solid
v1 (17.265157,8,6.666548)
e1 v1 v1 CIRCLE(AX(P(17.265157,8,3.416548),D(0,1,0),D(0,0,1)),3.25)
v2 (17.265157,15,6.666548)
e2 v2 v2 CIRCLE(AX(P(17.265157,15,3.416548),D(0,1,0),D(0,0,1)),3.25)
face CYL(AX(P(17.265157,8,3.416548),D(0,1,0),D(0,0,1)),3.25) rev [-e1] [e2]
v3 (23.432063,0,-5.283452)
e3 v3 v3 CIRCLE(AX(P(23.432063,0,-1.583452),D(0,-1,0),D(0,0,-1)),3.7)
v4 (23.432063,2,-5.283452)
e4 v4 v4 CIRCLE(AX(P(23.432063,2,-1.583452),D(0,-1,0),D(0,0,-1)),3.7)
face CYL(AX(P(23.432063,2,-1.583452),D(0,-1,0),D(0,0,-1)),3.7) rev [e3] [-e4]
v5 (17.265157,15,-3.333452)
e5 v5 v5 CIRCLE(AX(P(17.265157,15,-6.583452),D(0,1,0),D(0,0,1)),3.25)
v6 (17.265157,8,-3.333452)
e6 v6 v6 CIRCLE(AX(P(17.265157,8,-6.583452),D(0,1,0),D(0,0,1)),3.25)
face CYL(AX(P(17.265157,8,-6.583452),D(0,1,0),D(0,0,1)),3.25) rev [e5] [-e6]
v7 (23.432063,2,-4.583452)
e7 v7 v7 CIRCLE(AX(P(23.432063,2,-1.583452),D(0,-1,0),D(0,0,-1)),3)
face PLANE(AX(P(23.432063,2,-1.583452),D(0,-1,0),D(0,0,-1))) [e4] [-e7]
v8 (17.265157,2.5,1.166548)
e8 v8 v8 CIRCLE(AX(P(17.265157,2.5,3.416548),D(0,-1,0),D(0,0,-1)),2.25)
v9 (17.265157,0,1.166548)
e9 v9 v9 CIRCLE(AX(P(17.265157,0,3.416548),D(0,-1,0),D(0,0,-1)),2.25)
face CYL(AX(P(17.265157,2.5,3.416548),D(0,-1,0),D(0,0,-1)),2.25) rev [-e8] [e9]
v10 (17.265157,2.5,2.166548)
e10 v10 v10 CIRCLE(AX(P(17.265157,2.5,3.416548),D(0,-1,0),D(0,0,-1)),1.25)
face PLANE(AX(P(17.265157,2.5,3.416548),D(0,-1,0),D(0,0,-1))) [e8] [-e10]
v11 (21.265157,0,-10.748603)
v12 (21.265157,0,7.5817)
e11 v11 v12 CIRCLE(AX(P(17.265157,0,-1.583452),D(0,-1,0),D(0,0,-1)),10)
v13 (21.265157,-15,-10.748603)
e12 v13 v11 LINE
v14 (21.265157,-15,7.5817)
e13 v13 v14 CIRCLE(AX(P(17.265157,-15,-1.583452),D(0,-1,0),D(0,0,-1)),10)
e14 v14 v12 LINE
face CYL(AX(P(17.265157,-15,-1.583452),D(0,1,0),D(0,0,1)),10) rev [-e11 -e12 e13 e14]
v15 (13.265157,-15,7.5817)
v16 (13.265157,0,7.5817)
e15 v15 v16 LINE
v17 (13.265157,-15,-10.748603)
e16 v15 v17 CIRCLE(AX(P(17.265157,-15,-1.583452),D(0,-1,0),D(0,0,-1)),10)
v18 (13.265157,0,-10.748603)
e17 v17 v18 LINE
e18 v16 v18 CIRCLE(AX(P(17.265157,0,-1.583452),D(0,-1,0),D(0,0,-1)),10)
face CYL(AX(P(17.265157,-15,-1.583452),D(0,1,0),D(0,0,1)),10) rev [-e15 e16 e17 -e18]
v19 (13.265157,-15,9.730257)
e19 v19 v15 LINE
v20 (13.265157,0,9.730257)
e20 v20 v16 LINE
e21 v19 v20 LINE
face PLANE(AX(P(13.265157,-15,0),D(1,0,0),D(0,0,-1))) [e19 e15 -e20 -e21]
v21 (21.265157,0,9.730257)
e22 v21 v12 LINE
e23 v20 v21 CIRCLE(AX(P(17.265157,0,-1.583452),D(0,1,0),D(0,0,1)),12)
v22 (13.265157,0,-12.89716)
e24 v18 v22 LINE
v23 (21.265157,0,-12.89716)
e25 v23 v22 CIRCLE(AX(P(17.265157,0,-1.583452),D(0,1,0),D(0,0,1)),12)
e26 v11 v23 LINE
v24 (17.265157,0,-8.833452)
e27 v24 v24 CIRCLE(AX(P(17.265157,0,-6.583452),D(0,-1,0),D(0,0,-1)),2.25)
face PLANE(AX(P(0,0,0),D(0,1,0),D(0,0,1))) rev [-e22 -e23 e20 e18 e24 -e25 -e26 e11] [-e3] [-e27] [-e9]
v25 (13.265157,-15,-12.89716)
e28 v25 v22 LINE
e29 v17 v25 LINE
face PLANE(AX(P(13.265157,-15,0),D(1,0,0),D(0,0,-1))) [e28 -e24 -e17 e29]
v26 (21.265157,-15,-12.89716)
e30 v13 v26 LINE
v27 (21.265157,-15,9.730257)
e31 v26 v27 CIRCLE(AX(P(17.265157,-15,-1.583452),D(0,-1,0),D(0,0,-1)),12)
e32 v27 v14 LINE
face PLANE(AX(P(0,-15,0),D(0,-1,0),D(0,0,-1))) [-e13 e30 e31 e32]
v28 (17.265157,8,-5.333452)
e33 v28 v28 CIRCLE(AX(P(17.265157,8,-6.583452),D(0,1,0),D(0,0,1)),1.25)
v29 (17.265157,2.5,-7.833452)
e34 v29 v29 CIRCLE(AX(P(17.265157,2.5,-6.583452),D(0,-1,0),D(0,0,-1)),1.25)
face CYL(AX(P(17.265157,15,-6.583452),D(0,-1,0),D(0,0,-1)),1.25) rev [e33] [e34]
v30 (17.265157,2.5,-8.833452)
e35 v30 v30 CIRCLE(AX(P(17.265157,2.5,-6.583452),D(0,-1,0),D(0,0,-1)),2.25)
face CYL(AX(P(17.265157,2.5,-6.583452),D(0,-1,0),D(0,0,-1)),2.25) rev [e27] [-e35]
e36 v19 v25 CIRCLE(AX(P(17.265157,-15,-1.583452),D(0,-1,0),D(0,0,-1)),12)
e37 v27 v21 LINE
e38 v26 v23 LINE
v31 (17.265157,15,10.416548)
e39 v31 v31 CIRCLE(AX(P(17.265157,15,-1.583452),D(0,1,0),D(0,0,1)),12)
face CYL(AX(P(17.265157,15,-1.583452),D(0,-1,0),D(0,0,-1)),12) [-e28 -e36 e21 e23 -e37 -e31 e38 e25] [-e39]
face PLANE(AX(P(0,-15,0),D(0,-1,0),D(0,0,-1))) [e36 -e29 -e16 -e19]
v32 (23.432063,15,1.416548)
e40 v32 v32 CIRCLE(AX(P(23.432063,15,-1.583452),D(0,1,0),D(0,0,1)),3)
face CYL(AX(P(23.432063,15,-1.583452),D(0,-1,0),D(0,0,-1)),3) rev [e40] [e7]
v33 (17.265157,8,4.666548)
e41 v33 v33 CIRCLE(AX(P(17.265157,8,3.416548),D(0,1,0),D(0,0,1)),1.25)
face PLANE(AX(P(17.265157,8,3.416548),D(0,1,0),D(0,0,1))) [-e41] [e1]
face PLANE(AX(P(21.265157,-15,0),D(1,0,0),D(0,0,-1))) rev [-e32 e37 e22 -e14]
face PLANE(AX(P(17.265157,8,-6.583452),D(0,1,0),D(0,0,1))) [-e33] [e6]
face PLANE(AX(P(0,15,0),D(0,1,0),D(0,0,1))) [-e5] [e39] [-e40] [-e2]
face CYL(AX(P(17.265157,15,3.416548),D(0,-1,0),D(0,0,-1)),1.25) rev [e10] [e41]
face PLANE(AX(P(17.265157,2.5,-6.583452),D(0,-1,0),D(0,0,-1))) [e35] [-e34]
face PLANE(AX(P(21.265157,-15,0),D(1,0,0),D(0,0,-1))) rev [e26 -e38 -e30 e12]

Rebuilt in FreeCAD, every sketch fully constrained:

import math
import FreeCAD as App
import Part
import Sketcher

V = App.Vector
Q = App.Units.Quantity

doc = App.newDocument("Part")
body = doc.addObject("PartDesign::Body", "Body")

sketch1 = body.newObject("Sketcher::SketchObject", "Sketch")
sketch1.AttachmentSupport = (doc.getObject("XZ_Plane"), [""])
sketch1.MapMode = "FlatFace"
sketch1.addGeometry([
    Part.ArcOfCircle(Part.Circle(V(17.3, -1.6, 0), V(0, 0, 1), 12), math.radians(-109), math.radians(-71)),
    Part.ArcOfCircle(Part.Circle(V(17.3, -1.6, 0), V(0, 0, 1), 12), math.radians(109), math.radians(251)),
    Part.ArcOfCircle(Part.Circle(V(17.3, -1.6, 0), V(0, 0, 1), 12), math.radians(71), math.radians(109)),
    Part.ArcOfCircle(Part.Circle(V(17.3, -1.6, 0), V(0, 0, 1), 12), math.radians(0), math.radians(71)),
    Part.ArcOfCircle(Part.Circle(V(17.3, -1.6, 0), V(0, 0, 1), 12), math.radians(-71), math.radians(0)),
    Part.Circle(V(17.3, 3.4, 0), V(0, 0, 1), 1.2),
    Part.Circle(V(17.3, -6.6, 0), V(0, 0, 1), 1.2),
    Part.ArcOfCircle(Part.Circle(V(23.4, -1.6, 0), V(0, 0, 1), 3), math.radians(-136), math.radians(0)),
    Part.ArcOfCircle(Part.Circle(V(23.4, -1.6, 0), V(0, 0, 1), 3), math.radians(0), math.radians(136)),
    Part.ArcOfCircle(Part.Circle(V(23.4, -1.6, 0), V(0, 0, 1), 3), math.radians(136), math.radians(224)),
], False)
sketch1.addConstraint([
    Sketcher.Constraint("Tangent", 0, 1, 1, 2),
    Sketcher.Constraint("Tangent", 1, 1, 2, 2),
    Sketcher.Constraint("Tangent", 2, 1, 3, 2),
    Sketcher.Constraint("Tangent", 3, 1, 4, 2),
    Sketcher.Constraint("Tangent", 4, 1, 0, 2),
    Sketcher.Constraint("Tangent", 7, 2, 8, 1),
    Sketcher.Constraint("Tangent", 8, 2, 9, 1),
    Sketcher.Constraint("Tangent", 9, 2, 7, 1),
    Sketcher.Constraint("Coincident", 2, 3, 0, 3),
    Sketcher.Constraint("Equal", 5, 6),
    Sketcher.Constraint("Horizontal", 4, 3, 7, 3),
    Sketcher.Constraint("Horizontal", 1, 1, 2, 1),
    Sketcher.Constraint("Horizontal", 9, 3, 3, 1),
    Sketcher.Constraint("Horizontal", 0, 1, 4, 1),
    Sketcher.Constraint("Horizontal", 3, 1, 7, 2),
    Sketcher.Constraint("Vertical", 4, 3, 5, 3),
    Sketcher.Constraint("Vertical", 5, 3, 6, 3),
    Sketcher.Constraint("Vertical", 0, 1, 1, 1),
    Sketcher.Constraint("Vertical", 4, 1, 8, 2),
    Sketcher.Constraint("Vertical", 8, 2, 9, 2),
    Sketcher.Constraint("Radius", 0, Q("12 mm")),
    Sketcher.Constraint("Radius", 7, Q("3 mm")),
    Sketcher.Constraint("Diameter", 5, Q("2.5 mm")),
    Sketcher.Constraint("DistanceY", 0, 3, 5, 3, Q("5 mm")),
    Sketcher.Constraint("DistanceY", 6, 3, 3, 3, Q("5 mm")),
    Sketcher.Constraint("DistanceX", 0, 1, 6, 3, Q("4 mm")),
    Sketcher.Constraint("DistanceY", 0, 3, -1, 1, Q("1.583452 mm")),
    Sketcher.Constraint("DistanceY", -1, 1, 8, 2, Q("0.491282 mm")),
    Sketcher.Constraint("DistanceX", -1, 1, 0, 3, Q("17.265157 mm")),
])
pad1 = body.newObject("PartDesign::Pad", "Pad")
pad1.Profile = sketch1
pad1.Length = 15
pad1.Reversed = True

sketch2 = body.newObject("Sketcher::SketchObject", "Sketch001")
sketch2.AttachmentSupport = (doc.getObject("XZ_Plane"), [""])
sketch2.MapMode = "FlatFace"
sketch2.AttachmentOffset = App.Placement(V(0, 0, 15), App.Rotation())
sketch2.addGeometry([
    Part.LineSegment(V(13.3, -12.9, 0), V(13.3, -10.7, 0)),
    Part.ArcOfCircle(Part.Circle(V(17.3, -1.6, 0), V(0, 0, 1), 10), math.radians(114), math.radians(246)),
    Part.LineSegment(V(13.3, 7.6, 0), V(13.3, 9.7, 0)),
    Part.ArcOfCircle(Part.Circle(V(17.3, -1.6, 0), V(0, 0, 1), 12), math.radians(109), math.radians(251)),
    Part.LineSegment(V(21.3, -10.7, 0), V(21.3, -12.9, 0)),
    Part.ArcOfCircle(Part.Circle(V(17.3, -1.6, 0), V(0, 0, 1), 12), math.radians(-71), math.radians(0)),
    Part.ArcOfCircle(Part.Circle(V(17.3, -1.6, 0), V(0, 0, 1), 12), math.radians(0), math.radians(71)),
    Part.LineSegment(V(21.3, 9.7, 0), V(21.3, 7.6, 0)),
    Part.ArcOfCircle(Part.Circle(V(17.3, -1.6, 0), V(0, 0, 1), 10), math.radians(-66), math.radians(66)),
], False)
sketch2.addConstraint([
    Sketcher.Constraint("Coincident", 0, 2, 1, 2),
    Sketcher.Constraint("Coincident", 1, 1, 2, 1),
    Sketcher.Constraint("Coincident", 2, 2, 3, 1),
    Sketcher.Constraint("Coincident", 3, 2, 0, 1),
    Sketcher.Constraint("Coincident", 4, 2, 5, 1),
    Sketcher.Constraint("Tangent", 5, 2, 6, 1),
    Sketcher.Constraint("Coincident", 6, 2, 7, 1),
    Sketcher.Constraint("Coincident", 7, 2, 8, 2),
    Sketcher.Constraint("Coincident", 8, 1, 4, 1),
    Sketcher.Constraint("Vertical", 0),
    Sketcher.Constraint("Vertical", 2),
    Sketcher.Constraint("Vertical", 4),
    Sketcher.Constraint("Vertical", 7),
    Sketcher.Constraint("Coincident", 3, 3, 1, 3),
    Sketcher.Constraint("Coincident", 5, 3, 1, 3),
    Sketcher.Constraint("Coincident", 8, 3, 1, 3),
    Sketcher.Constraint("Equal", 3, 5),
    Sketcher.Constraint("Equal", 5, 6),
    Sketcher.Constraint("Equal", 1, 8),
    Sketcher.Constraint("Horizontal", 3, 2, 4, 2),
    Sketcher.Constraint("Horizontal", 8, 3, 5, 2),
    Sketcher.Constraint("Horizontal", 2, 2, 6, 2),
    Sketcher.Constraint("Vertical", 0, 2, 1, 1),
    Sketcher.Constraint("Radius", 1, Q("10 mm")),
    Sketcher.Constraint("Radius", 3, Q("12 mm")),
    Sketcher.Constraint("DistanceX", 0, 2, 6, 3, Q("4 mm")),
    Sketcher.Constraint("DistanceY", -1, 1, 1, 1, Q("7.5817 mm")),
    Sketcher.Constraint("DistanceX", -1, 1, 1, 3, Q("17.265157 mm")),
])
pad2 = body.newObject("PartDesign::Pad", "Pad001")
pad2.Profile = sketch2
pad2.Length = 15
pad2.Reversed = True

sketch3 = body.newObject("Sketcher::SketchObject", "Sketch002")
sketch3.AttachmentSupport = (doc.getObject("XZ_Plane"), [""])
sketch3.MapMode = "FlatFace"
sketch3.addGeometry(Part.Circle(V(17.3, -6.6, 0), V(0, 0, 1), 2.2), False)
sketch3.addConstraint([
    Sketcher.Constraint("Diameter", 0, Q("4.5 mm")),
    Sketcher.Constraint("DistanceY", 0, 3, -1, 1, Q("6.583452 mm")),
    Sketcher.Constraint("DistanceX", -1, 1, 0, 3, Q("17.265157 mm")),
])
pocket1 = body.newObject("PartDesign::Pocket", "Pocket")
pocket1.Profile = sketch3
pocket1.Length = 2.5

sketch4 = body.newObject("Sketcher::SketchObject", "Sketch003")
sketch4.AttachmentSupport = (doc.getObject("XZ_Plane"), [""])
sketch4.MapMode = "FlatFace"
sketch4.addGeometry(Part.Circle(V(17.3, 3.4, 0), V(0, 0, 1), 2.2), False)
sketch4.addConstraint([
    Sketcher.Constraint("Diameter", 0, Q("4.5 mm")),
    Sketcher.Constraint("DistanceY", -1, 1, 0, 3, Q("3.416548 mm")),
    Sketcher.Constraint("DistanceX", -1, 1, 0, 3, Q("17.265157 mm")),
])
pocket2 = body.newObject("PartDesign::Pocket", "Pocket001")
pocket2.Profile = sketch4
pocket2.Length = 2.5

sketch5 = body.newObject("Sketcher::SketchObject", "Sketch004")
sketch5.AttachmentSupport = (doc.getObject("XZ_Plane"), [""])
sketch5.MapMode = "FlatFace"
sketch5.addGeometry(Part.Circle(V(23.4, -1.6, 0), V(0, 0, 1), 3.7), False)
sketch5.addConstraint([
    Sketcher.Constraint("Diameter", 0, Q("7.4 mm")),
    Sketcher.Constraint("DistanceY", 0, 3, -1, 1, Q("1.583452 mm")),
    Sketcher.Constraint("DistanceX", -1, 1, 0, 3, Q("23.432063 mm")),
])
pocket3 = body.newObject("PartDesign::Pocket", "Pocket002")
pocket3.Profile = sketch5
pocket3.Length = 2

sketch6 = body.newObject("Sketcher::SketchObject", "Sketch005")
sketch6.AttachmentSupport = (doc.getObject("XZ_Plane"), [""])
sketch6.MapMode = "FlatFace"
sketch6.AttachmentOffset = App.Placement(V(0, 0, -15), App.Rotation())
sketch6.addGeometry(Part.Circle(V(17.3, -6.6, 0), V(0, 0, 1), 3.2), False)
sketch6.addConstraint([
    Sketcher.Constraint("Diameter", 0, Q("6.5 mm")),
    Sketcher.Constraint("DistanceY", 0, 3, -1, 1, Q("6.583452 mm")),
    Sketcher.Constraint("DistanceX", -1, 1, 0, 3, Q("17.265157 mm")),
])
pocket4 = body.newObject("PartDesign::Pocket", "Pocket003")
pocket4.Profile = sketch6
pocket4.Length = 7
pocket4.Reversed = True

sketch7 = body.newObject("Sketcher::SketchObject", "Sketch006")
sketch7.AttachmentSupport = (doc.getObject("XZ_Plane"), [""])
sketch7.MapMode = "FlatFace"
sketch7.AttachmentOffset = App.Placement(V(0, 0, -15), App.Rotation())
sketch7.addGeometry(Part.Circle(V(17.3, 3.4, 0), V(0, 0, 1), 3.2), False)
sketch7.addConstraint([
    Sketcher.Constraint("Diameter", 0, Q("6.5 mm")),
    Sketcher.Constraint("DistanceY", -1, 1, 0, 3, Q("3.416548 mm")),
    Sketcher.Constraint("DistanceX", -1, 1, 0, 3, Q("17.265157 mm")),
])
pocket5 = body.newObject("PartDesign::Pocket", "Pocket004")
pocket5.Profile = sketch7
pocket5.Length = 7
pocket5.Reversed = True

doc.recompute()
